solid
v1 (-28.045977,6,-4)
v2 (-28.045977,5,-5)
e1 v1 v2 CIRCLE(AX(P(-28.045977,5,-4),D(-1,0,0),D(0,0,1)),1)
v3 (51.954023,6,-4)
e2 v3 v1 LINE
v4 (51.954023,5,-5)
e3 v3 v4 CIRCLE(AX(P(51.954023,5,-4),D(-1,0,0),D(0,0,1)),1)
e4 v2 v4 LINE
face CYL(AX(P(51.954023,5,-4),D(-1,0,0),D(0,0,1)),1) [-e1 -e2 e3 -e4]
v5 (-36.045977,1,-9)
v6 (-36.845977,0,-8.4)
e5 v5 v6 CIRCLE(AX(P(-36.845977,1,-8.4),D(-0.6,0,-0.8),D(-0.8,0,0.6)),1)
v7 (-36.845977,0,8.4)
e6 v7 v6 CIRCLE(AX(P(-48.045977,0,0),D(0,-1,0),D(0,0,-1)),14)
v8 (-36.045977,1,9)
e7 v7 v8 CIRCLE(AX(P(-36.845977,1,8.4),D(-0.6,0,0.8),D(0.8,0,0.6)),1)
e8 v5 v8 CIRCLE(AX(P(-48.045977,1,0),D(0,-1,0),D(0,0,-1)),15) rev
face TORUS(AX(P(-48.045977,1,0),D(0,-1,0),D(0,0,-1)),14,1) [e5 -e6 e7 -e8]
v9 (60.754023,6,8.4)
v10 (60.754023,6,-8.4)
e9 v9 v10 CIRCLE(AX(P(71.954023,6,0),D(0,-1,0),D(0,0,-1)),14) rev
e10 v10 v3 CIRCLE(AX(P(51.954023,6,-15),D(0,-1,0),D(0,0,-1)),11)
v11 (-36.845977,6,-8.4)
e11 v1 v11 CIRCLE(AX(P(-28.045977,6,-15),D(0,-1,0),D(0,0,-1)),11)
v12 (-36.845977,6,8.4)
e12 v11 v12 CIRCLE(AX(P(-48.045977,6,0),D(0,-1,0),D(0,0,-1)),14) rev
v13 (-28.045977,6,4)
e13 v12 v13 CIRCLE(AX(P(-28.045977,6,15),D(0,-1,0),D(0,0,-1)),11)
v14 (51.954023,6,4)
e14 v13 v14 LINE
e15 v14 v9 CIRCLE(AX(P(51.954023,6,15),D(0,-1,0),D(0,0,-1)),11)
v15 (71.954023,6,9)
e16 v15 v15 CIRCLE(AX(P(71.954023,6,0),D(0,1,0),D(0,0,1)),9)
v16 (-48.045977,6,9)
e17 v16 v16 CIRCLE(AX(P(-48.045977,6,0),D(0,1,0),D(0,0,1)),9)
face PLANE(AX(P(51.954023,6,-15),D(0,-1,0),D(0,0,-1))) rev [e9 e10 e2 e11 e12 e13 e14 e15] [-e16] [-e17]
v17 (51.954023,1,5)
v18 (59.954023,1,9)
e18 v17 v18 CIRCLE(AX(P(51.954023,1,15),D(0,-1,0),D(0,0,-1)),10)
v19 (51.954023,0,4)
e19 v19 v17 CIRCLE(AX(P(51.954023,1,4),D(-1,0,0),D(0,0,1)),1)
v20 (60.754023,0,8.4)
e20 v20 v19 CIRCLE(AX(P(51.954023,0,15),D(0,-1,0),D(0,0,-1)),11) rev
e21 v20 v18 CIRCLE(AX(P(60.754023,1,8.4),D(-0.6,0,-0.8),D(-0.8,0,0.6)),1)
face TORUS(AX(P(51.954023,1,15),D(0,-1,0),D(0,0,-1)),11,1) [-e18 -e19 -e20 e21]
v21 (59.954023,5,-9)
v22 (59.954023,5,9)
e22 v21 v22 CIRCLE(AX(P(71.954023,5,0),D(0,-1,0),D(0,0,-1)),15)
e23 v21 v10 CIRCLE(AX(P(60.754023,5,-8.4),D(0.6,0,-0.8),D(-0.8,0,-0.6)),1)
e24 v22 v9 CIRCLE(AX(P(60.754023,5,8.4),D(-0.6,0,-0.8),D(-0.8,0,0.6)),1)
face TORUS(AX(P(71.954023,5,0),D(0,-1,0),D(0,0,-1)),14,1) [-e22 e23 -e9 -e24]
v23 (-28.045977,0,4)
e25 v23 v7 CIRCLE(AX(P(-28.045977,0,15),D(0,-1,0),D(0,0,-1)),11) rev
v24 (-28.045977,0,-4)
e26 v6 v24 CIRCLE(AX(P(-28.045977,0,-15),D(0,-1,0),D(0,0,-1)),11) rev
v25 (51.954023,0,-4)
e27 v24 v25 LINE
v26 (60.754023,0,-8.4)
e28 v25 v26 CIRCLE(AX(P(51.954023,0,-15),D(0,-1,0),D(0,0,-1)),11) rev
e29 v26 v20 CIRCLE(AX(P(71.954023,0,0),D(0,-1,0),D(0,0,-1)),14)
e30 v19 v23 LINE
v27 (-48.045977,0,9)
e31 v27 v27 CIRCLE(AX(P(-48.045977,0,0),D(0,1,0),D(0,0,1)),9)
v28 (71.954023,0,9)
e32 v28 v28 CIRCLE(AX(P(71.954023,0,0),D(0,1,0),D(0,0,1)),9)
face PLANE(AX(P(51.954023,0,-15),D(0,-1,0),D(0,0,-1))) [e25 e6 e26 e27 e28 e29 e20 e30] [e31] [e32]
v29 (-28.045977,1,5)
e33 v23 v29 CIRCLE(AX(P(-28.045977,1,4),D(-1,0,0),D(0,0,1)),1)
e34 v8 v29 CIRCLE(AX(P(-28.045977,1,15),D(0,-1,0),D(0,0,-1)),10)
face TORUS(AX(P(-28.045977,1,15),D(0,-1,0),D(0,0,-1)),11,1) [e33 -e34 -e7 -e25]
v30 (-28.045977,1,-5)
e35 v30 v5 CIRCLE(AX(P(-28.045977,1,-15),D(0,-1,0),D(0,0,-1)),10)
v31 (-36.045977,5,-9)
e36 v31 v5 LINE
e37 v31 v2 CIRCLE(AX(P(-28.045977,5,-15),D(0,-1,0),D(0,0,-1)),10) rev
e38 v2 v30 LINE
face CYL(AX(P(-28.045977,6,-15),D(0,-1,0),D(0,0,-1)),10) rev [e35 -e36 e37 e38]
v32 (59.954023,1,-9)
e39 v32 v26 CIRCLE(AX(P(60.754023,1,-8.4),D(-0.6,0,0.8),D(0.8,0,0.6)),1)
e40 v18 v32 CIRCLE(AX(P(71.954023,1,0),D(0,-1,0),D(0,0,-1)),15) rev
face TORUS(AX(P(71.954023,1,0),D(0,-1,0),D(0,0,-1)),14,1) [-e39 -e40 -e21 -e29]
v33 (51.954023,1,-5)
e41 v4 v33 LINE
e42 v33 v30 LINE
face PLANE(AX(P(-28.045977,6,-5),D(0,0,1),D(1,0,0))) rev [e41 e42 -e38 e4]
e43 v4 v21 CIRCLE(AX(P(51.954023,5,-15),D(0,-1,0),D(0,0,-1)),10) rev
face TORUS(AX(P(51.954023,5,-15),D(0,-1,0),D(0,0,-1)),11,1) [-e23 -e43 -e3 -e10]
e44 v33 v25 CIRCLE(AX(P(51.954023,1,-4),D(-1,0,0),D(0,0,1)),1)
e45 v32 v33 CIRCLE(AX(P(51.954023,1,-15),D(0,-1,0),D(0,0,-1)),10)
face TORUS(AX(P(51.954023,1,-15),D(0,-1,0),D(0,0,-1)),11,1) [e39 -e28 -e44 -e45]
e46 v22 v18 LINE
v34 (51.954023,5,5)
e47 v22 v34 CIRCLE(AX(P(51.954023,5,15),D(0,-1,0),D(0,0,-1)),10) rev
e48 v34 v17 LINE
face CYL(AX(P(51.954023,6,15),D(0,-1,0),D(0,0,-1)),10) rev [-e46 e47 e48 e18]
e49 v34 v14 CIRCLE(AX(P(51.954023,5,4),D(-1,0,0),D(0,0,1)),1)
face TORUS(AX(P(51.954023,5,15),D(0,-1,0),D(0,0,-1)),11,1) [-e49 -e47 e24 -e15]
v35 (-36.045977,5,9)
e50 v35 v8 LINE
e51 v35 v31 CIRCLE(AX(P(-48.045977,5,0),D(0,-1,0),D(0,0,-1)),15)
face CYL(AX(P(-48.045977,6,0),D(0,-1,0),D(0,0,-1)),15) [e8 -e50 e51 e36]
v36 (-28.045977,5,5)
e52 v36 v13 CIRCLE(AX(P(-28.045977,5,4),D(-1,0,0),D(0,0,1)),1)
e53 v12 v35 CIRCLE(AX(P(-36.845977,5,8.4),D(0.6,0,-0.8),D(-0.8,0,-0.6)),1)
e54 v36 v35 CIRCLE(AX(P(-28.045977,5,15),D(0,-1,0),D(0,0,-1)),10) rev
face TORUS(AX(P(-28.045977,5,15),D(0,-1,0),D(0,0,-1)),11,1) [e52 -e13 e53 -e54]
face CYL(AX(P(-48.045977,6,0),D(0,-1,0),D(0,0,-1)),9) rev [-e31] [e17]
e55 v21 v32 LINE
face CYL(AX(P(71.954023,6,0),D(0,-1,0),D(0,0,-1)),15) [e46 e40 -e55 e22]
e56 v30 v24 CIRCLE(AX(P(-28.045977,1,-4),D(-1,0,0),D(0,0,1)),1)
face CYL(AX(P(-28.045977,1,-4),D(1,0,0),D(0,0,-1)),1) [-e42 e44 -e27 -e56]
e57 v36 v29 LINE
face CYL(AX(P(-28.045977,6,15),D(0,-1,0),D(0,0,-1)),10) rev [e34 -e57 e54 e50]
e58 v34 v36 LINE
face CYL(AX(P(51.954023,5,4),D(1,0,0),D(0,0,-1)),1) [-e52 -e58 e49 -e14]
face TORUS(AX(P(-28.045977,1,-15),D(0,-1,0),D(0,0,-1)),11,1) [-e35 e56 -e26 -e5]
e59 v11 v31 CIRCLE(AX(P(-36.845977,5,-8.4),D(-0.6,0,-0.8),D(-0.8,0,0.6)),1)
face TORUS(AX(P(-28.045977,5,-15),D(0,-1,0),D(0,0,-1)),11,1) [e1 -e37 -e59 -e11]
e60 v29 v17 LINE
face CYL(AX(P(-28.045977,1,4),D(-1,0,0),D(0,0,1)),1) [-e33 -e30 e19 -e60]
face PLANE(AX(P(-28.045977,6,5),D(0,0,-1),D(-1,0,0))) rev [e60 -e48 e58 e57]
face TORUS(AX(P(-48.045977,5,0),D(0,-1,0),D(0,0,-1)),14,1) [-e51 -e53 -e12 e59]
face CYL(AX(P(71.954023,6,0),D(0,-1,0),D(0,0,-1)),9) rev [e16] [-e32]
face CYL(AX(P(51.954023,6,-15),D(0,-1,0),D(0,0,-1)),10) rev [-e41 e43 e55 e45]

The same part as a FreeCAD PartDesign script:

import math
import FreeCAD as App
import Part
import Sketcher
from FreeCAD import Vector


def edges_at(feature, points):
    """Names of the edges that pass closest to the given points."""
    edges = feature.Shape.Edges
    near = lambda p: min(range(len(edges)), key=lambda i: edges[i].distToShape(Part.Vertex(*p))[0])
    return sorted({f"Edge{near(p) + 1}" for p in points})

doc = App.newDocument("Part")
body = doc.addObject("PartDesign::Body", "Body")

sketch1 = body.newObject("Sketcher::SketchObject", "Sketch")
sketch1.AttachmentSupport = (doc.getObject("XZ_Plane"), [""])
sketch1.MapMode = "FlatFace"
sketch1.addGeometry(Part.LineSegment(Vector(52, -5, 0), Vector(-28, -5, 0)), False)
sketch1.addGeometry(Part.ArcOfCircle(Part.Circle(Vector(-28, -15, 0), Vector(0, 0, 1), 10), math.radians(90), math.radians(143)), False)
sketch1.addGeometry(Part.ArcOfCircle(Part.Circle(Vector(-48, 0, 0), Vector(0, 0, 1), 15), math.radians(37), math.radians(323)), False)
sketch1.addGeometry(Part.ArcOfCircle(Part.Circle(Vector(-28, 15, 0), Vector(0, 0, 1), 10), math.radians(-143), math.radians(-90)), False)
sketch1.addGeometry(Part.LineSegment(Vector(-28, 5, 0), Vector(52, 5, 0)), False)
sketch1.addGeometry(Part.ArcOfCircle(Part.Circle(Vector(52, 15, 0), Vector(0, 0, 1), 10), math.radians(-90), math.radians(-37)), False)
sketch1.addGeometry(Part.ArcOfCircle(Part.Circle(Vector(72, 0, 0), Vector(0, 0, 1), 15), math.radians(-143), math.radians(143)), False)
sketch1.addGeometry(Part.ArcOfCircle(Part.Circle(Vector(52, -15, 0), Vector(0, 0, 1), 10), math.radians(37), math.radians(90)), False)
sketch1.addGeometry(Part.Circle(Vector(72, 0, 0), Vector(0, 0, 1), 9), False)
sketch1.addGeometry(Part.Circle(Vector(-48, 0, 0), Vector(0, 0, 1), 9), False)
sketch1.addConstraint(Sketcher.Constraint("Tangent", 0, 2, 1, 1))
sketch1.addConstraint(Sketcher.Constraint("Tangent", 1, 2, 2, 2))
sketch1.addConstraint(Sketcher.Constraint("Tangent", 2, 1, 3, 1))
sketch1.addConstraint(Sketcher.Constraint("Tangent", 3, 2, 4, 1))
sketch1.addConstraint(Sketcher.Constraint("Tangent", 4, 2, 5, 1))
sketch1.addConstraint(Sketcher.Constraint("Tangent", 5, 2, 6, 2))
sketch1.addConstraint(Sketcher.Constraint("Tangent", 6, 1, 7, 1))
sketch1.addConstraint(Sketcher.Constraint("Tangent", 7, 2, 0, 1))
sketch1.addConstraint(Sketcher.Constraint("Horizontal", 0))
sketch1.addConstraint(Sketcher.Constraint("Horizontal", 4))
sketch1.addConstraint(Sketcher.Constraint("Coincident", 8, 3, 6, 3))
sketch1.addConstraint(Sketcher.Constraint("Coincident", 9, 3, 2, 3))
sketch1.addConstraint(Sketcher.Constraint("Equal", 1, 3))
sketch1.addConstraint(Sketcher.Constraint("Equal", 3, 5))
sketch1.addConstraint(Sketcher.Constraint("Equal", 2, 6))
sketch1.addConstraint(Sketcher.Constraint("Equal", 5, 7))
sketch1.addConstraint(Sketcher.Constraint("Equal", 8, 9))
sketch1.addConstraint(Sketcher.Constraint("Symmetric", 1, 3, 3, 3, -1))
sketch1.addConstraint(Sketcher.Constraint("PointOnObject", 6, 3, -1))
sketch1.addConstraint(Sketcher.Constraint("Diameter", 8, 18.0))
sketch1.addConstraint(Sketcher.Constraint("Radius", 1, 10.0))
sketch1.addConstraint(Sketcher.Constraint("Radius", 2, 15.0))
sketch1.addConstraint(Sketcher.Constraint("DistanceX", 0, 2, 0, 1, 80.0))
sketch1.addConstraint(Sketcher.Constraint("DistanceY", 1, 3, -1, 1, 15.0))
sketch1.addConstraint(Sketcher.Constraint("DistanceX", 1, 3, -1, 1, 28.045977))
pad1 = body.newObject("PartDesign::Pad", "Pad")
pad1.Profile = sketch1
pad1.Length = 6
pad1.Reversed = True
doc.recompute()

fillet = body.newObject("PartDesign::Fillet", "Fillet")
fillet.Base = (pad1, edges_at(pad1, [
    (-63.046, 0, 0),
    (-32.518, 0, -6.056),
    (11.954, 0, -5),
    (56.426, 0, -6.056),
    (-32.518, 6, -6.056),
    (-63.046, 6, 0),
    (-32.518, 6, 6.056),
    (11.954, 6, 5),
    (56.426, 6, 6.056),
    (86.954, 6, 0),
    (56.426, 6, -6.056),
    (86.954, 0, 0),
    (11.954, 6, -5),
    (56.426, 0, 6.056),
    (11.954, 0, 5),
    (-32.518, 0, 6.056),
]))
fillet.Radius = 1

doc.recompute()
